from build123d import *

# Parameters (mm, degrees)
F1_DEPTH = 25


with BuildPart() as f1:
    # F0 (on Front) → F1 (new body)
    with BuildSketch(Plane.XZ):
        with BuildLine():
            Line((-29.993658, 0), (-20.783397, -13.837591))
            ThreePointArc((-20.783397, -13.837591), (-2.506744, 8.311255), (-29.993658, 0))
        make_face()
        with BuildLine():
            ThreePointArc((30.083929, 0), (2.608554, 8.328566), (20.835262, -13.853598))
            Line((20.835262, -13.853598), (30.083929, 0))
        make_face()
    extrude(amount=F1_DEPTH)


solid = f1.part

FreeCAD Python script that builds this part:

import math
import FreeCAD as App
import Part
import Sketcher

V = App.Vector

doc = App.newDocument("Part")
body = doc.addObject("PartDesign::Body", "Body")
body.AllowCompound = True

# Sketch on XZ plane
sketch1 = body.newObject("Sketcher::SketchObject", "Sketch")
sketch1.AttachmentSupport = (doc.getObject("XZ_Plane"), [""])
sketch1.MapMode = "FlatFace"
sketch1.addGeometry(Part.LineSegment(V(-29.993658, 0, 0), V(-20.783397, -13.837591, 0)), False)
sketch1.addGeometry(Part.ArcOfCircle(Part.Circle(V(-14.993658, 0, 0), V(0, 0, 1), 15), math.radians(-112.704754), math.radians(179.999999)), False)
sketch1.addGeometry(Part.ArcOfCircle(Part.Circle(V(15.083929, 0, 0), V(0, 0, 1), 15), math.radians(0.000001), math.radians(292.545823)), False)
sketch1.addGeometry(Part.LineSegment(V(20.835262, -13.853598, 0), V(30.083929, 0, 0)), False)
sketch1.addConstraint(Sketcher.Constraint("Coincident", 0, 1, 1, 2))
sketch1.addConstraint(Sketcher.Constraint("Coincident", 1, 1, 0, 2))
sketch1.addConstraint(Sketcher.Constraint("Coincident", 2, 1, 3, 2))
sketch1.addConstraint(Sketcher.Constraint("Coincident", 3, 1, 2, 2))
sketch1.addConstraint(Sketcher.Constraint("Equal", 1, 2))
sketch1.addConstraint(Sketcher.Constraint("PointOnObject", 1, 3, -1))
sketch1.addConstraint(Sketcher.Constraint("PointOnObject", 2, 3, -1))
sketch1.addConstraint(Sketcher.Constraint("PointOnObject", 0, 1, -1))
sketch1.addConstraint(Sketcher.Constraint("PointOnObject", 2, 1, -1))
sketch1.addConstraint(Sketcher.Constraint("Radius", 1, 15.0))
sketch1.addConstraint(Sketcher.Constraint("Distance", 0, 16.62251))
sketch1.addConstraint(Sketcher.Constraint("Distance", 3, 16.657131))
sketch1.addConstraint(Sketcher.Constraint("DistanceX", 1, 3, -1, 1, 14.993658))
sketch1.addConstraint(Sketcher.Constraint("DistanceX", -1, 1, 2, 3, 15.083929))
pad1 = body.newObject("PartDesign::Pad", "Pad")
pad1.Profile = sketch1
pad1.Length = 25

doc.recompute()
